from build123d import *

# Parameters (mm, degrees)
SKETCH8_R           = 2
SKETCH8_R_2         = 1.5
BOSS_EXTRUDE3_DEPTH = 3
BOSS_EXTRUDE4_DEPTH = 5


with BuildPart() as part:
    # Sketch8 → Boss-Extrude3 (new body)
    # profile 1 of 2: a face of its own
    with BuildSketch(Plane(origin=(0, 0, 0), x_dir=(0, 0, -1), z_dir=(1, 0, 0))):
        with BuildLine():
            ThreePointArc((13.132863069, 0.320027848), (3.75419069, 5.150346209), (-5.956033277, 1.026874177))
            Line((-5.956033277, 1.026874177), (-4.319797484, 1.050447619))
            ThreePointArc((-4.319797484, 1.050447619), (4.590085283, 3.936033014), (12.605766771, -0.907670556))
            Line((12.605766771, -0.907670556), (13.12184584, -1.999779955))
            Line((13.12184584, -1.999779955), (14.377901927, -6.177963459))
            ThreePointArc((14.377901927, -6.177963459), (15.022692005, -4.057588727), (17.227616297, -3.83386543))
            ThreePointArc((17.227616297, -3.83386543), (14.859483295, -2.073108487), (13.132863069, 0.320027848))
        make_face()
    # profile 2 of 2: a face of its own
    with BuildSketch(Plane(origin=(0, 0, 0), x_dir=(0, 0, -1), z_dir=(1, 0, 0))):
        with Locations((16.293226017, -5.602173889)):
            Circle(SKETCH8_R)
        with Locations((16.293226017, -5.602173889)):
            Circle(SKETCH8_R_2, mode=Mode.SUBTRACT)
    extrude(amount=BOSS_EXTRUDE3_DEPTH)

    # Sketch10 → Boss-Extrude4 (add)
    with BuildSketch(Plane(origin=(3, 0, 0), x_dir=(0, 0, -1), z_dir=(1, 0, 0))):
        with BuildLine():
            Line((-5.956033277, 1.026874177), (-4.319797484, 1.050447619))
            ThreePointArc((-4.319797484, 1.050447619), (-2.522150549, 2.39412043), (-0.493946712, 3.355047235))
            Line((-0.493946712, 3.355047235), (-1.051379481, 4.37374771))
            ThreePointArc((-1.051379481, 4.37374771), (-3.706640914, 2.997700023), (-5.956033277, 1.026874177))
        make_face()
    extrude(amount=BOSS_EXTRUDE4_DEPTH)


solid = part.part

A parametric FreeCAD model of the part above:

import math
import FreeCAD as App
import Part
import Sketcher
from FreeCAD import Vector

doc = App.newDocument("Part")
params = doc.addObject("Spreadsheet::Sheet", "Params")
for row, (alias, value) in enumerate([
    ("sketch1_diameter", "3 mm"),
    ("sketch1_radius", "2 mm"),
    ("pad1_length", "3 mm"),
    ("pad2_length", "5 mm"),
], start=1):
    params.set(f"A{row}", alias)
    params.set(f"B{row}", "=" + value)
    params.setAlias(f"B{row}", alias)

body = doc.addObject("PartDesign::Body", "Body")

sketch1 = doc.addObject("Sketcher::SketchObject", "Sketch")
body.addObject(sketch1)
sketch1.AttachmentSupport = (doc.YZ_Plane, [""])
sketch1.MapMode = "FlatFace"
sketch1.addGeometry([
    Part.ArcOfCircle(Part.Circle(Vector(-7.3, -3.3, 0), Vector(0, 0, 1), 12.4), math.radians(-52), math.radians(48)),
    Part.LineSegment(Vector(1, 6, 0), Vector(1.1, 4.3, 0)),
    Part.ArcOfCircle(Part.Circle(Vector(-7.3, -3.3, 0), Vector(0, 0, 1), 11.3), math.radians(-56), math.radians(42)),
    Part.LineSegment(Vector(-0.9, -12.6, 0), Vector(-2, -13.1, 0)),
    Part.LineSegment(Vector(-2, -13.1, 0), Vector(-6.2, -14.4, 0)),
    Part.ArcOfCircle(Part.Circle(Vector(-5.6, -16.3, 0), Vector(0, 0, 1), 2), math.radians(107), math.radians(332)),
    Part.ArcOfCircle(Part.Circle(Vector(4.7, -21.7, 0), Vector(0, 0, 1), 9.7), math.radians(117), math.radians(152)),
    Part.Circle(Vector(-5.6, -16.3, 0), Vector(0, 0, 1), 1.5),
], False)
sketch1.addConstraint([
    Sketcher.Constraint("Coincident", 0, 2, 1, 1),
    Sketcher.Constraint("Coincident", 1, 2, 2, 2),
    Sketcher.Constraint("Coincident", 2, 1, 3, 1),
    Sketcher.Constraint("Coincident", 3, 2, 4, 1),
    Sketcher.Constraint("Tangent", 4, 2, 5, 1),
    Sketcher.Constraint("Tangent", 5, 2, 6, 2),
    Sketcher.Constraint("Coincident", 6, 1, 0, 1),
    Sketcher.Constraint("Coincident", 2, 3, 0, 3),
    Sketcher.Constraint("Coincident", 7, 3, 5, 3),
    Sketcher.Constraint("Diameter", 7, 3.0),
    Sketcher.Constraint("Radius", 5, 2.0),
    Sketcher.Constraint("Radius", 0, 12.421025),
    Sketcher.Constraint("Radius", 2, 11.272895),
    Sketcher.Constraint("Radius", 6, 9.667307),
    Sketcher.Constraint("Distance", 4, 4.3629),
    Sketcher.Constraint("DistanceY", 4, 2, -1, 1, 14.377902),
    Sketcher.Constraint("DistanceX", 5, 3, 6, 3, 10.315699),
    Sketcher.Constraint("DistanceY", 2, 3, 0, 2, 9.250599),
    Sketcher.Constraint("DistanceX", 2, 3, 2, 1, 6.354501),
    Sketcher.Constraint("DistanceX", 4, 2, 5, 2, 2.344098),
    Sketcher.Constraint("DistanceX", 2, 1, 6, 1, 1.227698),
    Sketcher.Constraint("DistanceX", 5, 3, 6, 1, 5.922202),
    Sketcher.Constraint("DistanceX", 0, 3, -1, 1, 7.262171),
    Sketcher.Constraint("DistanceX", 2, 3, 1, 2, 8.312619),
])
sketch1.setExpression("Constraints[9]", "Params.sketch1_diameter")
sketch1.setExpression("Constraints[10]", "Params.sketch1_radius")
pad1 = doc.addObject("PartDesign::Pad", "Pad")
body.addObject(pad1)
pad1.Profile = sketch1
pad1.setExpression("Length", "Params.pad1_length")

sketch2 = doc.addObject("Sketcher::SketchObject", "Sketch001")
body.addObject(sketch2)
sketch2.AttachmentSupport = (doc.YZ_Plane, [""])
sketch2.MapMode = "FlatFace"
sketch2.AttachmentOffset = App.Placement(Vector(0, 0, 3), App.Rotation())
sketch2.addGeometry([
    Part.LineSegment(Vector(1.026874, 5.956033, 0), Vector(1.050448, 4.319797, 0)),
    Part.ArcOfCircle(Part.Circle(Vector(-7.262171, -3.294565, 0), Vector(0, 0, 1), 11.272895), math.radians(19.63778), math.radians(42.489698)),
    Part.LineSegment(Vector(3.355047, 0.493947, 0), Vector(4.373748, 1.051379, 0)),
    Part.ArcOfCircle(Part.Circle(Vector(-7.262171, -3.294565, 0), Vector(0, 0, 1), 12.421025), math.radians(20.480353), math.radians(48.13791)),
], False)
sketch2.addConstraint([
    Sketcher.Constraint("Coincident", 0, 2, 1, 2),
    Sketcher.Constraint("Coincident", 1, 1, 2, 1),
    Sketcher.Constraint("Coincident", 2, 2, 3, 1),
    Sketcher.Constraint("Coincident", 3, 2, 0, 1),
    Sketcher.Constraint("Coincident", 3, 3, 1, 3),
    Sketcher.Constraint("Radius", 1, 11.272895),
    Sketcher.Constraint("Radius", 3, 12.421025),
    Sketcher.Constraint("DistanceX", 0, 2, 1, 1, 2.3046),
    Sketcher.Constraint("DistanceX", 1, 1, 2, 2, 1.0187),
    Sketcher.Constraint("DistanceY", 1, 3, 3, 2, 9.250599),
    Sketcher.Constraint("Distance", 2, 1.161242),
    Sketcher.Constraint("DistanceX", 1, 3, -1, 1, 7.262171),
    Sketcher.Constraint("DistanceY", -1, 1, 2, 2, 1.051379),
])
pad2 = doc.addObject("PartDesign::Pad", "Pad001")
body.addObject(pad2)
pad2.Profile = sketch2
pad2.setExpression("Length", "Params.pad2_length")

doc.recompute()
